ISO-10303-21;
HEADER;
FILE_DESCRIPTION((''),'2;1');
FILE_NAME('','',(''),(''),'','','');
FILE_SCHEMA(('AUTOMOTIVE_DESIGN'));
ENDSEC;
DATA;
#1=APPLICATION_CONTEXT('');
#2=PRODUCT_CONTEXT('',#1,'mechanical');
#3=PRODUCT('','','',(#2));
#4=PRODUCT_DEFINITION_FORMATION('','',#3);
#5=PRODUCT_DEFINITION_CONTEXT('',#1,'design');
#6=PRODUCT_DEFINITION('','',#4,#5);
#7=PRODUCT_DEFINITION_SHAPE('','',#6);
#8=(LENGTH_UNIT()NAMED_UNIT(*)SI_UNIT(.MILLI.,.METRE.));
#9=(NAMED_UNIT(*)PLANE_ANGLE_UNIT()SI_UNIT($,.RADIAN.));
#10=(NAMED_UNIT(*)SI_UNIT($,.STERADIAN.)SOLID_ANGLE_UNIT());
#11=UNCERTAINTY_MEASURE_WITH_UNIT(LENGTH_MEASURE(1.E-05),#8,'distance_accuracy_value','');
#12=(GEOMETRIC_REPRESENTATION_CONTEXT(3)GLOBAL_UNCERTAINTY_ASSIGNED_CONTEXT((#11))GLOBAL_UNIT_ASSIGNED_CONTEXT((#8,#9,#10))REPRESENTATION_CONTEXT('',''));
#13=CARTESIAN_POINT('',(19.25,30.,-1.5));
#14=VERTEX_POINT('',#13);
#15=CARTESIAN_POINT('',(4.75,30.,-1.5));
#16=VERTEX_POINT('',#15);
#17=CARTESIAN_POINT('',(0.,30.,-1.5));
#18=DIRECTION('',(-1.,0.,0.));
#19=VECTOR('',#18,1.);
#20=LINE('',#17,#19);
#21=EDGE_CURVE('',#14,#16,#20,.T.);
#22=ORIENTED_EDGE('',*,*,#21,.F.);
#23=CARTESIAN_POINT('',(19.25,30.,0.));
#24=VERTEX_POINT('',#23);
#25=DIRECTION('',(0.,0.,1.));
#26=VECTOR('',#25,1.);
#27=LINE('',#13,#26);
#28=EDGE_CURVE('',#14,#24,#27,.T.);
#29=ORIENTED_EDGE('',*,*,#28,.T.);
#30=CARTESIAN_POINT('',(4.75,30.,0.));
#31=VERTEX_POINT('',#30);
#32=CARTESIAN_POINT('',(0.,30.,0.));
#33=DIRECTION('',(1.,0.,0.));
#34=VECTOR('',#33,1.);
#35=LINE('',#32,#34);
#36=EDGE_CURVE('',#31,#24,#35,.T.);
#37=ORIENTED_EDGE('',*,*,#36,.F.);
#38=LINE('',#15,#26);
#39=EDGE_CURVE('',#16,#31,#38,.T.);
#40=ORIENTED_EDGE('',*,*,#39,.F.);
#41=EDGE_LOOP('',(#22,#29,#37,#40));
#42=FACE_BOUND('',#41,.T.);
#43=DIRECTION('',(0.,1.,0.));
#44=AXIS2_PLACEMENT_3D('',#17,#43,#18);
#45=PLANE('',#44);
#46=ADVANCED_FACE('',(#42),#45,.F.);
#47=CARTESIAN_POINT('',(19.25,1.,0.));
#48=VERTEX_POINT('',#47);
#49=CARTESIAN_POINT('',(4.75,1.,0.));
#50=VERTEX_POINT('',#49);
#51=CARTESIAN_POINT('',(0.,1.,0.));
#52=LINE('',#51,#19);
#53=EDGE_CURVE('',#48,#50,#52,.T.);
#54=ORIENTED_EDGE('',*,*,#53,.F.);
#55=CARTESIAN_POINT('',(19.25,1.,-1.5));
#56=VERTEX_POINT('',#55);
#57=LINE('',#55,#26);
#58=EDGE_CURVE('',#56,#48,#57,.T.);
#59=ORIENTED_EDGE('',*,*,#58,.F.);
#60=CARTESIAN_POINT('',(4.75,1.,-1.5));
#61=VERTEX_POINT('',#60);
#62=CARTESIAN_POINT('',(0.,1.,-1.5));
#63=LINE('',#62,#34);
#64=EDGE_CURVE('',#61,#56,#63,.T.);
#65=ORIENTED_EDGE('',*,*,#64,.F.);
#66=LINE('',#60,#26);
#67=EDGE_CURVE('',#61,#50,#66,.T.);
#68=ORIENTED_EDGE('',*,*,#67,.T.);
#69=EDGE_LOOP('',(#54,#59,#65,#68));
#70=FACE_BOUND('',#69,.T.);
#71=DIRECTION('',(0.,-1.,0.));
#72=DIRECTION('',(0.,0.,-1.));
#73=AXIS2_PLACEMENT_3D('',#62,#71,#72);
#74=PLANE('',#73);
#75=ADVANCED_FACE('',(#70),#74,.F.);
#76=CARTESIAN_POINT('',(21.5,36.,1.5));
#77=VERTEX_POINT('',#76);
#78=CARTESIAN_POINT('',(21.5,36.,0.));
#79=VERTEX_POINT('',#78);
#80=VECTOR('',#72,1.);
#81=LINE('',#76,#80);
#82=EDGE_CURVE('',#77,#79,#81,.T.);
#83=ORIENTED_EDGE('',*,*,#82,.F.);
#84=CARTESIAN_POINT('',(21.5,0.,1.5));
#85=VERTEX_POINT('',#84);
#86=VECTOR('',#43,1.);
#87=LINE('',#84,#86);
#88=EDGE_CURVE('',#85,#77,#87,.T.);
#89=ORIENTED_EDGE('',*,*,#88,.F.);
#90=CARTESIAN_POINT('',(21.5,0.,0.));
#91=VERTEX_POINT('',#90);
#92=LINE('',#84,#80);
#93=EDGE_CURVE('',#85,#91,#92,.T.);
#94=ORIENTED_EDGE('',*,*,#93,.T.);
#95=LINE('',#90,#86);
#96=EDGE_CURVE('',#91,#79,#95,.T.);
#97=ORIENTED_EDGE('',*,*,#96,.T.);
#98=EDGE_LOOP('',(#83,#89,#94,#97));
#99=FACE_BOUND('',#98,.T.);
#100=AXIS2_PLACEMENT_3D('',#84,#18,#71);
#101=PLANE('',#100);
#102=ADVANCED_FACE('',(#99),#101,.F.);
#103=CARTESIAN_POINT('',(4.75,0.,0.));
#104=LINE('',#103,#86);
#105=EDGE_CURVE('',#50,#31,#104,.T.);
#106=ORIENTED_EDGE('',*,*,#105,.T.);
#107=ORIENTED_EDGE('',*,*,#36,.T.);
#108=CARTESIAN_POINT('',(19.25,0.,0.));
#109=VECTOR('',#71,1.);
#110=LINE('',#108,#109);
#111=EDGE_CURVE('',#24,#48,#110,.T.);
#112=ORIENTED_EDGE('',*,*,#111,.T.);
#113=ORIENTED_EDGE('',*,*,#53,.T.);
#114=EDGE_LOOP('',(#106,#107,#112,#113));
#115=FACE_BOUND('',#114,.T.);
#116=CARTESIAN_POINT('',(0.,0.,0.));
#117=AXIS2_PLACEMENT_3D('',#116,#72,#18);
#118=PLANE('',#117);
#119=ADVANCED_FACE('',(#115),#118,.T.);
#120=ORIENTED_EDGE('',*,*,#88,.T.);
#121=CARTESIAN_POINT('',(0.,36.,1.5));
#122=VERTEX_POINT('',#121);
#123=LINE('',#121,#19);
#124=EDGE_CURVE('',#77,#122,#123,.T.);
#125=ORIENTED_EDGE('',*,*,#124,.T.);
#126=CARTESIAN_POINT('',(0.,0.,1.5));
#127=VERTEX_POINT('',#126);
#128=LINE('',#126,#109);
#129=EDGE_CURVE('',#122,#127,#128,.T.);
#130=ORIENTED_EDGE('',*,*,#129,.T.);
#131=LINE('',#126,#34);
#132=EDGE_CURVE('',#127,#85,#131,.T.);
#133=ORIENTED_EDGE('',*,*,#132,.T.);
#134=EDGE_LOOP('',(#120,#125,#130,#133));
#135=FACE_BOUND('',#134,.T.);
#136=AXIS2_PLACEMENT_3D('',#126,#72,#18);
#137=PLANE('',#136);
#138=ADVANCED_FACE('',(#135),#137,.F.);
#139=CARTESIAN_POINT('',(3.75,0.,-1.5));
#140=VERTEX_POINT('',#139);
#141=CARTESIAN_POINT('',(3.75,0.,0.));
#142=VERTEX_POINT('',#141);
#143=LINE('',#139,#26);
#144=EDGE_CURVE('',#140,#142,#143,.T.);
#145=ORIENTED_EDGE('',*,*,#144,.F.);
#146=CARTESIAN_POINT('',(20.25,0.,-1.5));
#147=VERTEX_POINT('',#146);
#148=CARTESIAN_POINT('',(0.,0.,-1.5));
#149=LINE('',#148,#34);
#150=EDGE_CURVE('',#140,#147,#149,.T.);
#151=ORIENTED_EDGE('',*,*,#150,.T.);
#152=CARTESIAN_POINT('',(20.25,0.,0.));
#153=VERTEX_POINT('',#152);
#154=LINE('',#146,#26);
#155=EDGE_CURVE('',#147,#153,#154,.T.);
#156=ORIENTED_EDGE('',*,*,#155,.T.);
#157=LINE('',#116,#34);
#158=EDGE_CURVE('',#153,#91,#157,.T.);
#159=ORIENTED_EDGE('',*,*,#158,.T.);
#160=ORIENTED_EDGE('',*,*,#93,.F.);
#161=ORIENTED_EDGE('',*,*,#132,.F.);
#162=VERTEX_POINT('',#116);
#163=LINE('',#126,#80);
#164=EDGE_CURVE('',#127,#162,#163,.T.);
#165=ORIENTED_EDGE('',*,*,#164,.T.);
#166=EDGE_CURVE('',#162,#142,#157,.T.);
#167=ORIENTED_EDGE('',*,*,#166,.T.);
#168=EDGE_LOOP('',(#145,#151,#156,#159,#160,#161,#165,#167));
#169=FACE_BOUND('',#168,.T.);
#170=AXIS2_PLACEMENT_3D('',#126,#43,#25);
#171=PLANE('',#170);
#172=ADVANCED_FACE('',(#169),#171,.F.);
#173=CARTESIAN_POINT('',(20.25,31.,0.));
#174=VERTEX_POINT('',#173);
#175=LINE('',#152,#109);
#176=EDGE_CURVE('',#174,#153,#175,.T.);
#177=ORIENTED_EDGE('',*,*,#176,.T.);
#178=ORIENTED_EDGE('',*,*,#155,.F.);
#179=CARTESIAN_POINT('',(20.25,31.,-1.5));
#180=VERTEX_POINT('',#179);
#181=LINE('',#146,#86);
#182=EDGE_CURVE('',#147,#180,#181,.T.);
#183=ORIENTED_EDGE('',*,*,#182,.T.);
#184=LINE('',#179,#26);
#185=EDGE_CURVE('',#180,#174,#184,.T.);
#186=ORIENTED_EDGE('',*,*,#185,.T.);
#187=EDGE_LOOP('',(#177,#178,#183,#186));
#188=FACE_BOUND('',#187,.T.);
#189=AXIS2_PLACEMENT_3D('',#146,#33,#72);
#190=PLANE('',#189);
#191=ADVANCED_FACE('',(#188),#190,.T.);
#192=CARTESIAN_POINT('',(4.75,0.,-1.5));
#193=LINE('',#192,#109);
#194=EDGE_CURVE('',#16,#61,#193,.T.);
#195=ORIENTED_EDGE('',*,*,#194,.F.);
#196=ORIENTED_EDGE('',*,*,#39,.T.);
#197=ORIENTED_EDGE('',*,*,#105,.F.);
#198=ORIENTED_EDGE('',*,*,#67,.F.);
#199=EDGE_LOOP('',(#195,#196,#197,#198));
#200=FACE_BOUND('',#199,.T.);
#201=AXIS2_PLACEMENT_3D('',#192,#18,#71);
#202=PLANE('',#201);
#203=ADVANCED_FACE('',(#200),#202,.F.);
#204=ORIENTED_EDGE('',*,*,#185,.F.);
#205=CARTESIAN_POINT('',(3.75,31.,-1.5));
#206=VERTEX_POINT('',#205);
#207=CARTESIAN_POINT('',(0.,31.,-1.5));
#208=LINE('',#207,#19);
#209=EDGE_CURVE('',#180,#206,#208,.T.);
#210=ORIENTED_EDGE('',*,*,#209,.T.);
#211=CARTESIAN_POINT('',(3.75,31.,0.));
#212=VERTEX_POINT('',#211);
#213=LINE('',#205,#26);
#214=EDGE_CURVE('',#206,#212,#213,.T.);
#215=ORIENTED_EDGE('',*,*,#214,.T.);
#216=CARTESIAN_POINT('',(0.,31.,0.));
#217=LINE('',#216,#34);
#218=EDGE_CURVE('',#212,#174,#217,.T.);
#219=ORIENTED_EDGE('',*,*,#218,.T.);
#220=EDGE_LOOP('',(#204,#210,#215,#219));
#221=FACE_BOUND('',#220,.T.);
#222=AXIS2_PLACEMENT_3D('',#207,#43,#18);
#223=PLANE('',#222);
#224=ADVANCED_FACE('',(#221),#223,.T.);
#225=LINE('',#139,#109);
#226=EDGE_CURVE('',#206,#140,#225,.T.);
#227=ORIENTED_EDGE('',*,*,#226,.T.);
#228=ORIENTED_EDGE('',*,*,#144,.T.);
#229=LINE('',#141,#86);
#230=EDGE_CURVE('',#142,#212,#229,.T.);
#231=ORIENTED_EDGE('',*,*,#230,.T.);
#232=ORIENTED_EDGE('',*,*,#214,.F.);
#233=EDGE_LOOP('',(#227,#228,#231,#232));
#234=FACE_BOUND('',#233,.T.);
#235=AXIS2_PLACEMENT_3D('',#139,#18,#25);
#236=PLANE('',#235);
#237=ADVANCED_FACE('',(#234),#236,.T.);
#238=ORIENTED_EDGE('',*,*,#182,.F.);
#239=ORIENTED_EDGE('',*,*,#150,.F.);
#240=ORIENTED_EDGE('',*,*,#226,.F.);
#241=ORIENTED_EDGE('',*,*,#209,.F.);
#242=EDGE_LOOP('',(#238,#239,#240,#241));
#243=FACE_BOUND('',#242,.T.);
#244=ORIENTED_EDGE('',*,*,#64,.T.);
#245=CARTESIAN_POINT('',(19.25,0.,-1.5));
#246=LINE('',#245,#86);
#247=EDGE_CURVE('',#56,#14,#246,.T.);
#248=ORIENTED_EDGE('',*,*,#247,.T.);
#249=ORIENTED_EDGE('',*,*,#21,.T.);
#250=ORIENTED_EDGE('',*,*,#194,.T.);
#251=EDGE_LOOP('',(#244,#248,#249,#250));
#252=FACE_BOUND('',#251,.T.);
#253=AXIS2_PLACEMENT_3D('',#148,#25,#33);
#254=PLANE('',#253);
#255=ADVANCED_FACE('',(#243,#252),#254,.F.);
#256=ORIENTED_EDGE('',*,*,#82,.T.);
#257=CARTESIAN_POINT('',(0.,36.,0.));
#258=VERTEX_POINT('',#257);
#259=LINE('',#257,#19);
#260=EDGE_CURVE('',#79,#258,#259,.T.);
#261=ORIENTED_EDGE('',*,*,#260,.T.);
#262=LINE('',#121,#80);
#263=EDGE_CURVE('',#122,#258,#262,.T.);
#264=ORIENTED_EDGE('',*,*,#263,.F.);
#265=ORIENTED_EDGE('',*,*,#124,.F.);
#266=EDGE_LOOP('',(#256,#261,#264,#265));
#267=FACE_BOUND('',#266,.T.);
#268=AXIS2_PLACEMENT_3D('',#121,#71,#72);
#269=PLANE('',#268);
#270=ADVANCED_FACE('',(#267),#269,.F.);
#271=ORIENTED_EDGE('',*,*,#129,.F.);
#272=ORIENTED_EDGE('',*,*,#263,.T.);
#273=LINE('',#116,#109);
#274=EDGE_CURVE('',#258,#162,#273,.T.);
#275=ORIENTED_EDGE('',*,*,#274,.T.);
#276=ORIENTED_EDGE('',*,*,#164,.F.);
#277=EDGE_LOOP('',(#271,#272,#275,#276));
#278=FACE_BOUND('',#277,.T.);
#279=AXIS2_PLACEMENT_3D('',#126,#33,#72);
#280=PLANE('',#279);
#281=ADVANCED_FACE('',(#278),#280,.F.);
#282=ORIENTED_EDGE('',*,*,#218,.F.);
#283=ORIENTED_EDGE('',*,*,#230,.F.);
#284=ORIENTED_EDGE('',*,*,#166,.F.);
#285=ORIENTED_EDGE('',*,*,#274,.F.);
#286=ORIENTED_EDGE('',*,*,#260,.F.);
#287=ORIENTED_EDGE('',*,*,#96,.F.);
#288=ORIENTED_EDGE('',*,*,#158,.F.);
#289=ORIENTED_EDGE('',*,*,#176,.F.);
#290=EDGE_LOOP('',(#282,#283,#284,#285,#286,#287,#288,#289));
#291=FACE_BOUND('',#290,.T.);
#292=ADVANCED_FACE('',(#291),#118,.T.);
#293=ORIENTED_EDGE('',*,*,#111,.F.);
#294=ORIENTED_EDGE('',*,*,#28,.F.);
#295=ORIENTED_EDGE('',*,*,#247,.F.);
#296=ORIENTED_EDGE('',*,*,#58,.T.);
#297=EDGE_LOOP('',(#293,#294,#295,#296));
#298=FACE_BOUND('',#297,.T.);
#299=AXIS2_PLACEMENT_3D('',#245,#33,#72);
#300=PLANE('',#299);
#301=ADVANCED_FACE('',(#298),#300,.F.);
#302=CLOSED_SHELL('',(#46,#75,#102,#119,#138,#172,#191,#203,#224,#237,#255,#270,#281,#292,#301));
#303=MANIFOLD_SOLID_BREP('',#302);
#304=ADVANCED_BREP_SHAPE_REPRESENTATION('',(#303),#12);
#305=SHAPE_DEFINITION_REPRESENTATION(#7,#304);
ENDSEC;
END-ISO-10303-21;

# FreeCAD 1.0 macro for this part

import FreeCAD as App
import Part
import Sketcher
Q = App.Units.Quantity


def add_polygon(sketch, points):
    """Adds a closed chain of lines whose ends are joined by coincident constraints."""
    first, n = sketch.GeometryCount, len(points)
    for a, b in zip(points, points[1:] + points[:1]):
        sketch.addGeometry(Part.LineSegment(App.Vector(*a, 0), App.Vector(*b, 0)), False)
    for i in range(n):
        sketch.addConstraint(Sketcher.Constraint("Coincident", first + i, 2, first + (i + 1) % n, 1))

doc = App.newDocument("Part")
params = doc.addObject("Spreadsheet::Sheet", "Params")
for row, (alias, value) in enumerate([
    ("sketch1_height", "36 mm"),
    ("sketch1_width", "21.5 mm"),
    ("pad1_length", "1.5 mm"),
    ("sketch2_height", "31 mm"),
    ("sketch2_height2", "29 mm"),
    ("sketch2_width", "16.5 mm"),
    ("sketch2_width2", "14.5 mm"),
    ("pad2_length", "3 mm"),
], start=1):
    params.set(f"A{row}", alias)
    params.set(f"B{row}", "=" + value)
    params.setAlias(f"B{row}", alias)

body = doc.addObject("PartDesign::Body", "Body")

sketch1 = body.newObject("Sketcher::SketchObject", "Sketch")
sketch1.AttachmentSupport = (doc.getObject("XY_Plane"), [""])
sketch1.MapMode = "FlatFace"
add_polygon(sketch1, [(0, 36), (0, 0), (21.5, 0), (21.5, 36)])
sketch1.addConstraint([
    Sketcher.Constraint("Vertical", 0),
    Sketcher.Constraint("Horizontal", 1),
    Sketcher.Constraint("Vertical", 2),
    Sketcher.Constraint("Horizontal", 3),
    Sketcher.Constraint("Coincident", 0, 2, -1, 1),
    Sketcher.Constraint("DistanceY", 0, 2, 0, 1, Q("36 mm")),
    Sketcher.Constraint("DistanceX", 1, 1, 1, 2, Q("21.5 mm")),
])
sketch1.setExpression("Constraints[9]", "Params.sketch1_height")
sketch1.setExpression("Constraints[10]", "Params.sketch1_width")
pad1 = body.newObject("PartDesign::Pad", "Pad")
pad1.Profile = sketch1
pad1.setExpression("Length", "Params.pad1_length")

sketch2 = body.newObject("Sketcher::SketchObject", "Sketch001")
sketch2.AttachmentSupport = (doc.getObject("XY_Plane"), [""])
sketch2.MapMode = "FlatFace"
sketch2.AttachmentOffset = App.Placement(App.Vector(0, 0, 1.5), App.Rotation())
add_polygon(sketch2, [(3.75, 0), (20.25, 0), (20.25, 31), (3.75, 31)])
add_polygon(sketch2, [(19.25, 30), (19.25, 1), (4.75, 1), (4.75, 30)])
sketch2.addConstraint([
    Sketcher.Constraint("Horizontal", 0),
    Sketcher.Constraint("Vertical", 1),
    Sketcher.Constraint("Horizontal", 2),
    Sketcher.Constraint("Vertical", 3),
    Sketcher.Constraint("Vertical", 4),
    Sketcher.Constraint("Horizontal", 5),
    Sketcher.Constraint("Vertical", 6),
    Sketcher.Constraint("Horizontal", 7),
    Sketcher.Constraint("PointOnObject", 0, 2, -1),
    Sketcher.Constraint("DistanceY", 1, 1, 1, 2, Q("31 mm")),
    Sketcher.Constraint("DistanceY", 4, 2, 4, 1, Q("29 mm")),
    Sketcher.Constraint("DistanceX", 0, 1, 0, 2, Q("16.5 mm")),
    Sketcher.Constraint("DistanceX", 5, 2, 5, 1, Q("14.5 mm")),
    Sketcher.Constraint("DistanceY", -1, 1, 4, 2, Q("1 mm")),
    Sketcher.Constraint("DistanceX", 4, 2, 0, 2, Q("1 mm")),
    Sketcher.Constraint("DistanceX", -1, 1, 0, 2, Q("20.25 mm")),
])
sketch2.setExpression("Constraints[17]", "Params.sketch2_height")
sketch2.setExpression("Constraints[18]", "Params.sketch2_height2")
sketch2.setExpression("Constraints[19]", "Params.sketch2_width")
sketch2.setExpression("Constraints[20]", "Params.sketch2_width2")
pad2 = body.newObject("PartDesign::Pad", "Pad001")
pad2.Profile = sketch2
pad2.setExpression("Length", "Params.pad2_length")
pad2.Reversed = True

doc.recompute()
